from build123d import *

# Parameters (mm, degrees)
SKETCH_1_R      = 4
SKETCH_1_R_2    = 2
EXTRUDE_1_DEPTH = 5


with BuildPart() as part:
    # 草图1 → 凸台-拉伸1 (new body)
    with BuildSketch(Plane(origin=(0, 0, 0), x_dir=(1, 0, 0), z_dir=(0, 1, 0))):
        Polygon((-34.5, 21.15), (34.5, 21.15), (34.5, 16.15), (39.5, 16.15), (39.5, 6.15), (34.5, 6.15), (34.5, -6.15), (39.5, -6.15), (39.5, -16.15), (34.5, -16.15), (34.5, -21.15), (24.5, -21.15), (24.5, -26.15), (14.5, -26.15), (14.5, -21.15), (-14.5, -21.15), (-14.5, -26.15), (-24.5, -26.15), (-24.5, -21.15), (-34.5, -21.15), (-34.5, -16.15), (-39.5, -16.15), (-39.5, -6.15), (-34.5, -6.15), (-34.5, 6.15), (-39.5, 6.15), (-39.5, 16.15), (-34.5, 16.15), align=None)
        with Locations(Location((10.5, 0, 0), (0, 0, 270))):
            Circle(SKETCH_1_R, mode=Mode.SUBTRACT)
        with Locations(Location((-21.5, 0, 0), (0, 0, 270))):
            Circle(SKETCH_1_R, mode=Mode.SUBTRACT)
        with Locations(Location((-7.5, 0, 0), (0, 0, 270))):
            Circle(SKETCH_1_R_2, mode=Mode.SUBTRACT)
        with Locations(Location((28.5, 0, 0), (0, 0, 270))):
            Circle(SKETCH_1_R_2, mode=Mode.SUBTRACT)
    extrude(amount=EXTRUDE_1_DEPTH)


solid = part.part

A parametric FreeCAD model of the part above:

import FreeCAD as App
import Part
import Sketcher
Q = App.Units.Quantity

doc = App.newDocument("Part")
body = doc.addObject("PartDesign::Body", "Body")

sketch1 = body.newObject("Sketcher::SketchObject", "Sketch")
sketch1.AttachmentSupport = (doc.getObject("XZ_Plane"), [""])
sketch1.MapMode = "FlatFace"
sketch1.addGeometry([
    Part.LineSegment(App.Vector(34.5, -21.1, 0), App.Vector(-34.5, -21.1, 0)),
    Part.LineSegment(App.Vector(-34.5, -21.1, 0), App.Vector(-34.5, -16.1, 0)),
    Part.LineSegment(App.Vector(-34.5, -16.1, 0), App.Vector(-39.5, -16.1, 0)),
    Part.LineSegment(App.Vector(-39.5, -16.1, 0), App.Vector(-39.5, -6.2, 0)),
    Part.LineSegment(App.Vector(-39.5, -6.2, 0), App.Vector(-34.5, -6.2, 0)),
    Part.LineSegment(App.Vector(-34.5, -6.2, 0), App.Vector(-34.5, 6.2, 0)),
    Part.LineSegment(App.Vector(-34.5, 6.2, 0), App.Vector(-39.5, 6.2, 0)),
    Part.LineSegment(App.Vector(-39.5, 6.2, 0), App.Vector(-39.5, 16.1, 0)),
    Part.LineSegment(App.Vector(-39.5, 16.1, 0), App.Vector(-34.5, 16.1, 0)),
    Part.LineSegment(App.Vector(-34.5, 16.1, 0), App.Vector(-34.5, 21.1, 0)),
    Part.LineSegment(App.Vector(-34.5, 21.1, 0), App.Vector(-24.5, 21.1, 0)),
    Part.LineSegment(App.Vector(-24.5, 21.1, 0), App.Vector(-24.5, 26.1, 0)),
    Part.LineSegment(App.Vector(-24.5, 26.1, 0), App.Vector(-14.5, 26.1, 0)),
    Part.LineSegment(App.Vector(-14.5, 26.1, 0), App.Vector(-14.5, 21.1, 0)),
    Part.LineSegment(App.Vector(-14.5, 21.1, 0), App.Vector(14.5, 21.1, 0)),
    Part.LineSegment(App.Vector(14.5, 21.1, 0), App.Vector(14.5, 26.1, 0)),
    Part.LineSegment(App.Vector(14.5, 26.1, 0), App.Vector(24.5, 26.1, 0)),
    Part.LineSegment(App.Vector(24.5, 26.1, 0), App.Vector(24.5, 21.1, 0)),
    Part.LineSegment(App.Vector(24.5, 21.1, 0), App.Vector(34.5, 21.1, 0)),
    Part.LineSegment(App.Vector(34.5, 21.1, 0), App.Vector(34.5, 16.1, 0)),
    Part.LineSegment(App.Vector(34.5, 16.1, 0), App.Vector(39.5, 16.1, 0)),
    Part.LineSegment(App.Vector(39.5, 16.1, 0), App.Vector(39.5, 6.2, 0)),
    Part.LineSegment(App.Vector(39.5, 6.2, 0), App.Vector(34.5, 6.2, 0)),
    Part.LineSegment(App.Vector(34.5, 6.2, 0), App.Vector(34.5, -6.2, 0)),
    Part.LineSegment(App.Vector(34.5, -6.2, 0), App.Vector(39.5, -6.2, 0)),
    Part.LineSegment(App.Vector(39.5, -6.2, 0), App.Vector(39.5, -16.1, 0)),
    Part.LineSegment(App.Vector(39.5, -16.1, 0), App.Vector(34.5, -16.1, 0)),
    Part.LineSegment(App.Vector(34.5, -16.1, 0), App.Vector(34.5, -21.1, 0)),
    Part.Circle(App.Vector(28.5, 0, 0), App.Vector(0, 0, 1), 2),
    Part.Circle(App.Vector(10.5, 0, 0), App.Vector(0, 0, 1), 4),
    Part.Circle(App.Vector(-7.5, 0, 0), App.Vector(0, 0, 1), 2),
    Part.Circle(App.Vector(-21.5, 0, 0), App.Vector(0, 0, 1), 4),
], False)
sketch1.addConstraint([
    Sketcher.Constraint("Coincident", 0, 2, 1, 1),
    Sketcher.Constraint("Coincident", 1, 2, 2, 1),
    Sketcher.Constraint("Coincident", 2, 2, 3, 1),
    Sketcher.Constraint("Coincident", 3, 2, 4, 1),
    Sketcher.Constraint("Coincident", 4, 2, 5, 1),
    Sketcher.Constraint("Coincident", 5, 2, 6, 1),
    Sketcher.Constraint("Coincident", 6, 2, 7, 1),
    Sketcher.Constraint("Coincident", 7, 2, 8, 1),
    Sketcher.Constraint("Coincident", 8, 2, 9, 1),
    Sketcher.Constraint("Coincident", 9, 2, 10, 1),
    Sketcher.Constraint("Coincident", 10, 2, 11, 1),
    Sketcher.Constraint("Coincident", 11, 2, 12, 1),
    Sketcher.Constraint("Coincident", 12, 2, 13, 1),
    Sketcher.Constraint("Coincident", 13, 2, 14, 1),
    Sketcher.Constraint("Coincident", 14, 2, 15, 1),
    Sketcher.Constraint("Coincident", 15, 2, 16, 1),
    Sketcher.Constraint("Coincident", 16, 2, 17, 1),
    Sketcher.Constraint("Coincident", 17, 2, 18, 1),
    Sketcher.Constraint("Coincident", 18, 2, 19, 1),
    Sketcher.Constraint("Coincident", 19, 2, 20, 1),
    Sketcher.Constraint("Coincident", 20, 2, 21, 1),
    Sketcher.Constraint("Coincident", 21, 2, 22, 1),
    Sketcher.Constraint("Coincident", 22, 2, 23, 1),
    Sketcher.Constraint("Coincident", 23, 2, 24, 1),
    Sketcher.Constraint("Coincident", 24, 2, 25, 1),
    Sketcher.Constraint("Coincident", 25, 2, 26, 1),
    Sketcher.Constraint("Coincident", 26, 2, 27, 1),
    Sketcher.Constraint("Coincident", 27, 2, 0, 1),
    Sketcher.Constraint("Horizontal", 0),
    Sketcher.Constraint("Vertical", 1),
    Sketcher.Constraint("Horizontal", 2),
    Sketcher.Constraint("Vertical", 3),
    Sketcher.Constraint("Horizontal", 4),
    Sketcher.Constraint("Vertical", 5),
    Sketcher.Constraint("Horizontal", 6),
    Sketcher.Constraint("Vertical", 7),
    Sketcher.Constraint("Horizontal", 8),
    Sketcher.Constraint("Vertical", 9),
    Sketcher.Constraint("Horizontal", 10),
    Sketcher.Constraint("Vertical", 11),
    Sketcher.Constraint("Horizontal", 12),
    Sketcher.Constraint("Vertical", 13),
    Sketcher.Constraint("Horizontal", 14),
    Sketcher.Constraint("Vertical", 15),
    Sketcher.Constraint("Horizontal", 16),
    Sketcher.Constraint("Vertical", 17),
    Sketcher.Constraint("Horizontal", 18),
    Sketcher.Constraint("Vertical", 19),
    Sketcher.Constraint("Horizontal", 20),
    Sketcher.Constraint("Vertical", 21),
    Sketcher.Constraint("Horizontal", 22),
    Sketcher.Constraint("Vertical", 23),
    Sketcher.Constraint("Horizontal", 24),
    Sketcher.Constraint("Vertical", 25),
    Sketcher.Constraint("Horizontal", 26),
    Sketcher.Constraint("Vertical", 27),
    Sketcher.Constraint("Equal", 28, 30),
    Sketcher.Constraint("Equal", 29, 31),
    Sketcher.Constraint("Symmetric", 0, 2, 18, 2, -1, 1),
    Sketcher.Constraint("Symmetric", 2, 2, 20, 2, -1, 1),
    Sketcher.Constraint("Symmetric", 4, 2, 22, 2, -1, 1),
    Sketcher.Constraint("Symmetric", 6, 2, 24, 2, -1, 1),
    Sketcher.Constraint("Symmetric", 8, 2, 26, 2, -1, 1),
    Sketcher.Constraint("Symmetric", 12, 2, 15, 2, -2),
    Sketcher.Constraint("Symmetric", 10, 2, 17, 2, -2),
    Sketcher.Constraint("Symmetric", 8, 2, 19, 2, -2),
    Sketcher.Constraint("Symmetric", 6, 2, 21, 2, -2),
    Sketcher.Constraint("PointOnObject", 28, 3, -1),
    Sketcher.Constraint("PointOnObject", 29, 3, -1),
    Sketcher.Constraint("PointOnObject", 30, 3, -1),
    Sketcher.Constraint("PointOnObject", 31, 3, -1),
    Sketcher.Constraint("Horizontal", 10, 2, 13, 2),
    Sketcher.Constraint("Vertical", 1, 2, 4, 2),
    Sketcher.Constraint("Equal", 10, 12),
    Sketcher.Constraint("Equal", 26, 1),
    Sketcher.Constraint("Equal", 18, 3),
    Sketcher.Constraint("Equal", 9, 11),
    Sketcher.Constraint("Diameter", 28, Q("4 mm")),
    Sketcher.Constraint("Diameter", 29, Q("8 mm")),
    Sketcher.Constraint("DistanceX", 0, 2, 0, 1, Q("69 mm")),
    Sketcher.Constraint("DistanceX", 2, 2, 2, 1, Q("5 mm")),
    Sketcher.Constraint("DistanceX", 10, 1, 10, 2, Q("10 mm")),
    Sketcher.Constraint("DistanceY", 5, 1, 5, 2, Q("12.3 mm")),
    Sketcher.Constraint("DistanceX", 29, 3, 28, 3, Q("18 mm")),
    Sketcher.Constraint("DistanceX", 30, 3, 29, 3, Q("18 mm")),
    Sketcher.Constraint("DistanceX", 31, 3, 30, 3, Q("14 mm")),
    Sketcher.Constraint("DistanceX", 0, 2, 31, 3, Q("13 mm")),
])
pad1 = body.newObject("PartDesign::Pad", "Pad")
pad1.Profile = sketch1
pad1.Length = 5
pad1.Reversed = True

doc.recompute()
